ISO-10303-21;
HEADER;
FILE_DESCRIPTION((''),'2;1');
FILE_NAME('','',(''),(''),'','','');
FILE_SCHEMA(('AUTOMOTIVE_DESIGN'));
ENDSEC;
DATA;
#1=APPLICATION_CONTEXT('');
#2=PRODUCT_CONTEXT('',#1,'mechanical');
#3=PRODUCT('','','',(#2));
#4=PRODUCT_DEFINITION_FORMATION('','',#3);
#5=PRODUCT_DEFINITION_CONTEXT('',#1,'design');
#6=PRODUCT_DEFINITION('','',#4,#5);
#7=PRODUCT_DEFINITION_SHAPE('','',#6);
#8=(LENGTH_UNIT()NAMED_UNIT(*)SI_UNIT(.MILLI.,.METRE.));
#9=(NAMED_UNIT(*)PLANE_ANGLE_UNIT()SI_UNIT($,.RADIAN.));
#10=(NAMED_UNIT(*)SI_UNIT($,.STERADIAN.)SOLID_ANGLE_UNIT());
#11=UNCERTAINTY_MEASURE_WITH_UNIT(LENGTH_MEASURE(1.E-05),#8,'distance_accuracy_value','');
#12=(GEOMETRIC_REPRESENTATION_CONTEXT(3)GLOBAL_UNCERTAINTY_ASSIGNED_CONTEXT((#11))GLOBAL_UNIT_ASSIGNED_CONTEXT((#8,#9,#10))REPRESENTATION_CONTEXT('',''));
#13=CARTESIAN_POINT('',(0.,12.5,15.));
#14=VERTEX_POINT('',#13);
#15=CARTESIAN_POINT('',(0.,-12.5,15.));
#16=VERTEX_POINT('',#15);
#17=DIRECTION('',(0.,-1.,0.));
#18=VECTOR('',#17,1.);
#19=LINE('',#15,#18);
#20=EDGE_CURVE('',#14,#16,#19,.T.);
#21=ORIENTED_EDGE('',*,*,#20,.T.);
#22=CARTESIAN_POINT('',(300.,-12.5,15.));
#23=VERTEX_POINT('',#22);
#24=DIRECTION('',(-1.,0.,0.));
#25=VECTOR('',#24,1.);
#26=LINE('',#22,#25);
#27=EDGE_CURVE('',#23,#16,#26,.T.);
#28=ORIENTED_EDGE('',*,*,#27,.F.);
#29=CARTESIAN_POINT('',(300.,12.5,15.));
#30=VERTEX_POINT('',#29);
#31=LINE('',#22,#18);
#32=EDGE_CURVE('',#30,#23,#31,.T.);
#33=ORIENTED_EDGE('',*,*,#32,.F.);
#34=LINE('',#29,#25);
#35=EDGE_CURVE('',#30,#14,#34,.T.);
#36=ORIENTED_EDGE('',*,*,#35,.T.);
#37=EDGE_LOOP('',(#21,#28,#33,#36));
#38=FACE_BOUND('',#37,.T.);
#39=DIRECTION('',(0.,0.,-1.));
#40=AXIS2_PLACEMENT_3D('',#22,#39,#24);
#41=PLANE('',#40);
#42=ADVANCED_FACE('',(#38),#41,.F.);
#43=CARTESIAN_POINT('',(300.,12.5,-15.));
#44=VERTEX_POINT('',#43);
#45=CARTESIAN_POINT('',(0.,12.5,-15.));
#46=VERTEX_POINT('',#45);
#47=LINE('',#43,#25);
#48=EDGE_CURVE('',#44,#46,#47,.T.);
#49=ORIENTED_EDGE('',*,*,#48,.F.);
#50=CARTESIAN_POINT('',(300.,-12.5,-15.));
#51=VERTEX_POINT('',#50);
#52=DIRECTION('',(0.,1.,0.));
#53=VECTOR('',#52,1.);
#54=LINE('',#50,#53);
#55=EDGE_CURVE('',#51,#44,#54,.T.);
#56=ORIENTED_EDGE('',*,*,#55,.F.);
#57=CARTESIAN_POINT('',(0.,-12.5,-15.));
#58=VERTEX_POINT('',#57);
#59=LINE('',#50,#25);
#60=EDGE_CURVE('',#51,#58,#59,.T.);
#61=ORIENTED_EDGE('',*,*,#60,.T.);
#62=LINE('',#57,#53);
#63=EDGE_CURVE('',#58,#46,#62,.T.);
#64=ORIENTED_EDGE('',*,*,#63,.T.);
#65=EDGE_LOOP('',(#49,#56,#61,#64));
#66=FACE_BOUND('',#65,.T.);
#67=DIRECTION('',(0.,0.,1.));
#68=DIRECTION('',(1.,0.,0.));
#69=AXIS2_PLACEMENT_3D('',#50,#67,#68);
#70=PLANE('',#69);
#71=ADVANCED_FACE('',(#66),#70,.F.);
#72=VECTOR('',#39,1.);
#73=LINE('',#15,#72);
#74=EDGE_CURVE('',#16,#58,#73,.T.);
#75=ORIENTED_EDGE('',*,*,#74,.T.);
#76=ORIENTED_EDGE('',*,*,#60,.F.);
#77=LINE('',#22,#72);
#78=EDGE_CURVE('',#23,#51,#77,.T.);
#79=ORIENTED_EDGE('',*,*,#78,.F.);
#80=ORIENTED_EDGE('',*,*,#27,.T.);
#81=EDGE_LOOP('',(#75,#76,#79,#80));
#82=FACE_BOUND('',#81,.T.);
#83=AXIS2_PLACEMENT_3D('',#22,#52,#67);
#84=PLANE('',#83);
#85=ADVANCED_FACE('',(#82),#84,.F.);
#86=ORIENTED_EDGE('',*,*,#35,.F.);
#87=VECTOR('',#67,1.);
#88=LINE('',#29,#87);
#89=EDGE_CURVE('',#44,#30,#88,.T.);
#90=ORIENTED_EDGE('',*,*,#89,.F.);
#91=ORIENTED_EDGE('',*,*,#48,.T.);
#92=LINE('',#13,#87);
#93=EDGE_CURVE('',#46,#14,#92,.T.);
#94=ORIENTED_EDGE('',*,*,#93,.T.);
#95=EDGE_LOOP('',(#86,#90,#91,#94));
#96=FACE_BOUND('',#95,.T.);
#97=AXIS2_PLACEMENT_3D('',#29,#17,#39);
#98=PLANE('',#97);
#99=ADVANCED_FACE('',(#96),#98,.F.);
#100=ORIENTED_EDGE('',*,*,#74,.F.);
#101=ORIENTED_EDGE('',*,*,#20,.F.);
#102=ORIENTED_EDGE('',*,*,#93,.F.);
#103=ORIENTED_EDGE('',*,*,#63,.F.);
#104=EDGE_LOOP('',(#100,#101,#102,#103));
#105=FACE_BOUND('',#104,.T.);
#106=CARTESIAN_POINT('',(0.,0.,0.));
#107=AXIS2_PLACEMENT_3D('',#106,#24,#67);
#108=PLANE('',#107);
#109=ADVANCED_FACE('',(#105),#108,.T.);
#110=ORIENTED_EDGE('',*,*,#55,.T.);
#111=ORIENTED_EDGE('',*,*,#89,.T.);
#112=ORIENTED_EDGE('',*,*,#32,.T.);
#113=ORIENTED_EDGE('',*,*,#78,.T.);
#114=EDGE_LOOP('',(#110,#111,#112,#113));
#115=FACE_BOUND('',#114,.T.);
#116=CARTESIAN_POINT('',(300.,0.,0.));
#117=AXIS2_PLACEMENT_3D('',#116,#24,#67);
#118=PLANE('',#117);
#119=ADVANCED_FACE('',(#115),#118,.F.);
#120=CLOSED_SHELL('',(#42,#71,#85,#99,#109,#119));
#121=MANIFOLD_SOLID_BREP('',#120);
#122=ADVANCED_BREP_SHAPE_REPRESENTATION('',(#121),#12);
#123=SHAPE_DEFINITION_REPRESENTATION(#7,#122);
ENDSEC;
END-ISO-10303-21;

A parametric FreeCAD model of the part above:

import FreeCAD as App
import Part
import Sketcher
from FreeCAD import Vector


def add_polygon(sketch, points):
    """Adds a closed chain of lines whose ends are joined by coincident constraints."""
    first, n = sketch.GeometryCount, len(points)
    for a, b in zip(points, points[1:] + points[:1]):
        sketch.addGeometry(Part.LineSegment(App.Vector(*a, 0), App.Vector(*b, 0)), False)
    for i in range(n):
        sketch.addConstraint(Sketcher.Constraint("Coincident", first + i, 2, first + (i + 1) % n, 1))

doc = App.newDocument("Part")
body = doc.addObject("PartDesign::Body", "Body")

# Sketch on YZ plane
sketch1 = body.newObject("Sketcher::SketchObject", "Sketch")
sketch1.AttachmentSupport = (doc.getObject("YZ_Plane"), [""])
sketch1.MapMode = "FlatFace"
add_polygon(sketch1, [(12, 15), (-12, 15), (-12, -15), (12, -15)])  # lines 0-3
sketch1.addConstraint([
    Sketcher.Constraint("Horizontal", 0),
    Sketcher.Constraint("Vertical", 1),
    Sketcher.Constraint("Horizontal", 2),
    Sketcher.Constraint("Vertical", 3),
    Sketcher.Constraint("Symmetric", 0, 2, 2, 2, -1, 1),
    Sketcher.Constraint("DistanceX", 0, 2, 0, 1, 25.0),
    Sketcher.Constraint("DistanceY", 1, 2, 1, 1, 30.0),
])
pad1 = body.newObject("PartDesign::Pad", "Pad")
pad1.Profile = sketch1
pad1.Length = 300

doc.recompute()
